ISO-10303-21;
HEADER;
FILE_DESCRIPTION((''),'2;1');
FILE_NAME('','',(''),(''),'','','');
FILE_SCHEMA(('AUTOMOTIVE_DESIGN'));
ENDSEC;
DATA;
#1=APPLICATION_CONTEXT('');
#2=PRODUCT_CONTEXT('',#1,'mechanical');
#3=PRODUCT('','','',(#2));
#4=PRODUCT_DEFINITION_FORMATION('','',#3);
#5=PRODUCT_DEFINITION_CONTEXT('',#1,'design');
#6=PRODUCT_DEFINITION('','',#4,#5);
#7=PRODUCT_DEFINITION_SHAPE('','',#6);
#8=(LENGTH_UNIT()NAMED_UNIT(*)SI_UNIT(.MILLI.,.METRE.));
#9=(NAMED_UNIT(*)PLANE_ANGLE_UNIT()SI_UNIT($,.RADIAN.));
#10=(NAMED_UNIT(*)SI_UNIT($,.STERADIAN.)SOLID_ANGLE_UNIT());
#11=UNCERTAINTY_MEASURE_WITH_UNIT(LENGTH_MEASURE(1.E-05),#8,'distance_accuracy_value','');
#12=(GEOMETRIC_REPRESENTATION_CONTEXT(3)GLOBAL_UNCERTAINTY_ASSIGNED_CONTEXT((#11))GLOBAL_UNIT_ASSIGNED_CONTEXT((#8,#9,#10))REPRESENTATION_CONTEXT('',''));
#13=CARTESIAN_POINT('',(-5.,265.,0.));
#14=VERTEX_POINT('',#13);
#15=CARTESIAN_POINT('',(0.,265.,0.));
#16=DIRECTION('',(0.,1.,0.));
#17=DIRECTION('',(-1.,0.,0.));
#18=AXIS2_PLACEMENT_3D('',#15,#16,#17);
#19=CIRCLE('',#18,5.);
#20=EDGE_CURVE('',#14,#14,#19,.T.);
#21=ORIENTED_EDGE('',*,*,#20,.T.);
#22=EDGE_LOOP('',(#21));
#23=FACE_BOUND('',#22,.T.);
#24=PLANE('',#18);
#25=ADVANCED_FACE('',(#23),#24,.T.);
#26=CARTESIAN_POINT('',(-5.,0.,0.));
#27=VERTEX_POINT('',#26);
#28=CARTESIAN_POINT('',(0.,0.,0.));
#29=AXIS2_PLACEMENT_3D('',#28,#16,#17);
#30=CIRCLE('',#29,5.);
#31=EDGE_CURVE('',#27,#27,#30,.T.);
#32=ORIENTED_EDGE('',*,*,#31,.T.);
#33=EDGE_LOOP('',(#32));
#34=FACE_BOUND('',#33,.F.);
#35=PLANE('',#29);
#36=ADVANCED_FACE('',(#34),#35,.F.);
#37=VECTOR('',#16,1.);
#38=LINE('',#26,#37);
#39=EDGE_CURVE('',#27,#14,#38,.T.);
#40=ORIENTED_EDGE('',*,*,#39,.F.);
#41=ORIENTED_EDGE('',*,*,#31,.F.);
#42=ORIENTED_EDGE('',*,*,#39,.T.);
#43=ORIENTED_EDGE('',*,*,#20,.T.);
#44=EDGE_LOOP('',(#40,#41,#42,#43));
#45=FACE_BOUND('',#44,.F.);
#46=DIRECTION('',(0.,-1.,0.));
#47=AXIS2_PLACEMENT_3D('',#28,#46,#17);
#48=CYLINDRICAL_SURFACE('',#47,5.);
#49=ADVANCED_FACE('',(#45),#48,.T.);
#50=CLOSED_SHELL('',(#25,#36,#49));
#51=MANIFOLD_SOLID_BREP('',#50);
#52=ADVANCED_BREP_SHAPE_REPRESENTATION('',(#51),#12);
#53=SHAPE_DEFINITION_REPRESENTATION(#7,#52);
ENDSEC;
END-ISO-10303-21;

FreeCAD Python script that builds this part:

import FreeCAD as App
import Part
import Sketcher
from FreeCAD import Vector
Q = App.Units.Quantity

doc = App.newDocument("Part")
params = doc.addObject("Spreadsheet::Sheet", "Params")
for row, (alias, value) in enumerate([
    ("sketch1_diameter", "10 mm"),
    ("pad1_length", "265 mm"),
], start=1):
    params.set(f"A{row}", alias)
    params.set(f"B{row}", "=" + value)
    params.setAlias(f"B{row}", alias)

body = doc.addObject("PartDesign::Body", "Body")

# Sketch on XZ plane
sketch1 = body.newObject("Sketcher::SketchObject", "Sketch")
sketch1.AttachmentSupport = (doc.getObject("XZ_Plane"), [""])
sketch1.MapMode = "FlatFace"
sketch1.addGeometry(Part.Circle(Vector(0, 0, 0), Vector(0, 0, 1), 5), False)
sketch1.addConstraint(Sketcher.Constraint("Coincident", 0, 3, -1, 1))
sketch1.addConstraint(Sketcher.Constraint("Diameter", 0, Q("10 mm")))
sketch1.setExpression("Constraints[1]", "Params.sketch1_diameter")
pad1 = body.newObject("PartDesign::Pad", "Pad")
pad1.Profile = sketch1
pad1.setExpression("Length", "Params.pad1_length")
pad1.Reversed = True

doc.recompute()
